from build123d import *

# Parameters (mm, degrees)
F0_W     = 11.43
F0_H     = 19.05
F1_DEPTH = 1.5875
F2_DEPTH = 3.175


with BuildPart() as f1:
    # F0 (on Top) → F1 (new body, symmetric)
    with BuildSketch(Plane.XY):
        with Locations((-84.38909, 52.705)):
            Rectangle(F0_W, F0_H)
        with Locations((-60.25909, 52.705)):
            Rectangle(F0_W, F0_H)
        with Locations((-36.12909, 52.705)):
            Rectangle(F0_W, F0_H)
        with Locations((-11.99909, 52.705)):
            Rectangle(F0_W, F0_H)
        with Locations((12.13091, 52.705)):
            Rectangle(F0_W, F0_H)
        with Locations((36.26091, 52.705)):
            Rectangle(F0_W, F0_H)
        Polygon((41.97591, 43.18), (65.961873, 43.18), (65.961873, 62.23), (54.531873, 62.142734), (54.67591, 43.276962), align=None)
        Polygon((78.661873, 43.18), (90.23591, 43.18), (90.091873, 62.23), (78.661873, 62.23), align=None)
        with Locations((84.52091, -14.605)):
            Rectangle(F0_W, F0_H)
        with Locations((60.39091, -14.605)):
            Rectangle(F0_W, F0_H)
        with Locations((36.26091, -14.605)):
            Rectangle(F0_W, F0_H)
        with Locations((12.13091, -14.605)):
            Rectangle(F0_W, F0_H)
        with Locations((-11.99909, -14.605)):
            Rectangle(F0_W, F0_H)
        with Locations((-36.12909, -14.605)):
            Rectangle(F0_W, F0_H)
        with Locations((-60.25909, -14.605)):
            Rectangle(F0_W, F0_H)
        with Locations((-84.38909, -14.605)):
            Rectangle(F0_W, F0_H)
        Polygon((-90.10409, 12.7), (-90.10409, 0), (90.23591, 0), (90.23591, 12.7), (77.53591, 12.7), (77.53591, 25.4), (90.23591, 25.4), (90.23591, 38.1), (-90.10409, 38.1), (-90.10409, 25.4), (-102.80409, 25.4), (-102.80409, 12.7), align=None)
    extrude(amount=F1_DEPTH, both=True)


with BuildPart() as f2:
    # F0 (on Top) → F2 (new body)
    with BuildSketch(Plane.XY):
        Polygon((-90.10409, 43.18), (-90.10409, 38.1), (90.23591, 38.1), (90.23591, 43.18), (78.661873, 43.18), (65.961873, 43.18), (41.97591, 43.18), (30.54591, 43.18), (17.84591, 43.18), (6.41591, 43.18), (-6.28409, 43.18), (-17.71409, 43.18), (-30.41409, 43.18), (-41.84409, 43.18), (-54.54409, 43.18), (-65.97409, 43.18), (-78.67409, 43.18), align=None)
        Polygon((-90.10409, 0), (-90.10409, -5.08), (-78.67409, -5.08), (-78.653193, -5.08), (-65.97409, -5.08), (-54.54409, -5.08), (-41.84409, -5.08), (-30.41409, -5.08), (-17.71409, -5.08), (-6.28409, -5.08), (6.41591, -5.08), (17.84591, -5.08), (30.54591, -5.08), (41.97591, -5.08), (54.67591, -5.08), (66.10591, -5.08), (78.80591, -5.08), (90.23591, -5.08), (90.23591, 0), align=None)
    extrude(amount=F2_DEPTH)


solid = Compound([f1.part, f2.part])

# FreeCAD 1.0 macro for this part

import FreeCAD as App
import Part
import Sketcher
Q = App.Units.Quantity


def add_polygon(sketch, points):
    """Adds a closed chain of lines whose ends are joined by coincident constraints."""
    first, n = sketch.GeometryCount, len(points)
    for a, b in zip(points, points[1:] + points[:1]):
        sketch.addGeometry(Part.LineSegment(App.Vector(*a, 0), App.Vector(*b, 0)), False)
    for i in range(n):
        sketch.addConstraint(Sketcher.Constraint("Coincident", first + i, 2, first + (i + 1) % n, 1))

doc = App.newDocument("Part")
body = doc.addObject("PartDesign::Body", "Body")
body.AllowCompound = True

# Sketch on XY plane
sketch1 = body.newObject("Sketcher::SketchObject", "Sketch")
sketch1.AttachmentSupport = (doc.getObject("XY_Plane"), [""])
sketch1.MapMode = "FlatFace"
add_polygon(sketch1, [(-90.10409, 62.23), (-90.10409, 43.18), (-78.67409, 43.18), (-78.67409, 62.23)])  # lines 0-3
add_polygon(sketch1, [(-65.97409, 62.23), (-65.97409, 43.18), (-54.54409, 43.18), (-54.54409, 62.23)])  # lines 4-7
add_polygon(sketch1, [(-41.84409, 62.23), (-41.84409, 43.18), (-30.41409, 43.18), (-30.41409, 62.23)])  # lines 8-11
add_polygon(sketch1, [(-17.71409, 62.23), (-17.71409, 43.18), (-6.28409, 43.18), (-6.28409, 62.23)])  # lines 12-15
add_polygon(sketch1, [(6.41591, 62.23), (6.41591, 43.18), (17.84591, 43.18), (17.84591, 62.23)])  # lines 16-19
add_polygon(sketch1, [(30.54591, 62.23), (30.54591, 43.18), (41.97591, 43.18), (41.97591, 62.23)])  # lines 20-23
add_polygon(sketch1, [(41.97591, 43.18), (65.961873, 43.18), (65.961873, 62.23), (54.531873, 62.142734), (54.67591, 43.276962)])  # lines 24-28
add_polygon(sketch1, [(78.661873, 43.18), (90.23591, 43.18), (90.091873, 62.23), (78.661873, 62.23)])  # lines 29-32
add_polygon(sketch1, [(78.80591, -5.08), (78.80591, -24.13), (90.23591, -24.13), (90.23591, -5.08)])  # lines 33-36
add_polygon(sketch1, [(54.67591, -5.08), (54.67591, -24.13), (66.10591, -24.13), (66.10591, -5.08)])  # lines 37-40
add_polygon(sketch1, [(30.54591, -5.08), (30.54591, -24.13), (41.97591, -24.13), (41.97591, -5.08)])  # lines 41-44
add_polygon(sketch1, [(6.41591, -5.08), (6.41591, -24.13), (17.84591, -24.13), (17.84591, -5.08)])  # lines 45-48
add_polygon(sketch1, [(-17.71409, -5.08), (-17.71409, -24.13), (-6.28409, -24.13), (-6.28409, -5.08)])  # lines 49-52
add_polygon(sketch1, [(-41.84409, -5.08), (-41.84409, -24.13), (-30.41409, -24.13), (-30.41409, -5.08)])  # lines 53-56
add_polygon(sketch1, [(-65.97409, -5.08), (-65.97409, -24.13), (-54.54409, -24.13), (-54.54409, -5.08)])  # lines 57-60
add_polygon(sketch1, [(-90.10409, -5.08), (-90.10409, -24.13), (-78.67409, -24.13), (-78.67409, -5.08)])  # lines 61-64
add_polygon(sketch1, [(-90.10409, 12.7), (-90.10409, 0), (90.23591, 0), (90.23591, 12.7), (77.53591, 12.7), (77.53591, 25.4), (90.23591, 25.4), (90.23591, 38.1), (-90.10409, 38.1), (-90.10409, 25.4), (-102.80409, 25.4), (-102.80409, 12.7)])  # lines 65-76
sketch1.addConstraint([
    Sketcher.Constraint("Vertical", 0),
    Sketcher.Constraint("Horizontal", 1),
    Sketcher.Constraint("Vertical", 2),
    Sketcher.Constraint("Horizontal", 3),
    Sketcher.Constraint("Vertical", 4),
    Sketcher.Constraint("Horizontal", 5),
    Sketcher.Constraint("Vertical", 6),
    Sketcher.Constraint("Horizontal", 7),
    Sketcher.Constraint("Vertical", 8),
    Sketcher.Constraint("Horizontal", 9),
    Sketcher.Constraint("Vertical", 10),
    Sketcher.Constraint("Horizontal", 11),
    Sketcher.Constraint("Vertical", 12),
    Sketcher.Constraint("Horizontal", 13),
    Sketcher.Constraint("Vertical", 14),
    Sketcher.Constraint("Horizontal", 15),
    Sketcher.Constraint("Vertical", 16),
    Sketcher.Constraint("Horizontal", 17),
    Sketcher.Constraint("Vertical", 18),
    Sketcher.Constraint("Horizontal", 19),
    Sketcher.Constraint("Vertical", 20),
    Sketcher.Constraint("Horizontal", 21),
    Sketcher.Constraint("Vertical", 22),
    Sketcher.Constraint("Horizontal", 23),
    Sketcher.Constraint("Horizontal", 24),
    Sketcher.Constraint("Vertical", 25),
    Sketcher.Constraint("Horizontal", 29),
    Sketcher.Constraint("Horizontal", 31),
    Sketcher.Constraint("Vertical", 32),
    Sketcher.Constraint("Vertical", 33),
    Sketcher.Constraint("Horizontal", 34),
    Sketcher.Constraint("Vertical", 35),
    Sketcher.Constraint("Horizontal", 36),
    Sketcher.Constraint("Vertical", 37),
    Sketcher.Constraint("Horizontal", 38),
    Sketcher.Constraint("Vertical", 39),
    Sketcher.Constraint("Horizontal", 40),
    Sketcher.Constraint("Vertical", 41),
    Sketcher.Constraint("Horizontal", 42),
    Sketcher.Constraint("Vertical", 43),
    Sketcher.Constraint("Horizontal", 44),
    Sketcher.Constraint("Vertical", 45),
    Sketcher.Constraint("Horizontal", 46),
    Sketcher.Constraint("Vertical", 47),
    Sketcher.Constraint("Horizontal", 48),
    Sketcher.Constraint("Vertical", 49),
    Sketcher.Constraint("Horizontal", 50),
    Sketcher.Constraint("Vertical", 51),
    Sketcher.Constraint("Horizontal", 52),
    Sketcher.Constraint("Vertical", 53),
    Sketcher.Constraint("Horizontal", 54),
    Sketcher.Constraint("Vertical", 55),
    Sketcher.Constraint("Horizontal", 56),
    Sketcher.Constraint("Vertical", 57),
    Sketcher.Constraint("Horizontal", 58),
    Sketcher.Constraint("Vertical", 59),
    Sketcher.Constraint("Horizontal", 60),
    Sketcher.Constraint("Vertical", 61),
    Sketcher.Constraint("Horizontal", 62),
    Sketcher.Constraint("Vertical", 63),
    Sketcher.Constraint("Horizontal", 64),
    Sketcher.Constraint("Vertical", 65),
    Sketcher.Constraint("Horizontal", 66),
    Sketcher.Constraint("Vertical", 67),
    Sketcher.Constraint("Horizontal", 68),
    Sketcher.Constraint("Vertical", 69),
    Sketcher.Constraint("Horizontal", 70),
    Sketcher.Constraint("Vertical", 71),
    Sketcher.Constraint("Horizontal", 72),
    Sketcher.Constraint("Vertical", 73),
    Sketcher.Constraint("Horizontal", 74),
    Sketcher.Constraint("Vertical", 75),
    Sketcher.Constraint("Horizontal", 76),
    Sketcher.Constraint("Coincident", 28, 2, 21, 2),
    Sketcher.Constraint("PointOnObject", 65, 2, -1),
    Sketcher.Constraint("Perpendicular", 26, 27),
    Sketcher.Constraint("Perpendicular", 27, 28),
    Sketcher.Constraint("Horizontal", 1, 2, 4, 2),
    Sketcher.Constraint("Horizontal", 3, 2, 6, 2),
    Sketcher.Constraint("Horizontal", 5, 2, 8, 2),
    Sketcher.Constraint("Horizontal", 7, 2, 10, 2),
    Sketcher.Constraint("Horizontal", 9, 2, 12, 2),
    Sketcher.Constraint("Horizontal", 11, 2, 14, 2),
    Sketcher.Constraint("Horizontal", 13, 2, 16, 2),
    Sketcher.Constraint("Horizontal", 15, 2, 18, 2),
    Sketcher.Constraint("Horizontal", 17, 2, 20, 2),
    Sketcher.Constraint("Horizontal", 19, 2, 22, 2),
    Sketcher.Constraint("Horizontal", 23, 2, 25, 2),
    Sketcher.Constraint("Horizontal", 28, 2, 29, 2),
    Sketcher.Constraint("Horizontal", 25, 2, 30, 2),
    Sketcher.Constraint("Horizontal", 34, 2, 37, 2),
    Sketcher.Constraint("Horizontal", 36, 2, 39, 2),
    Sketcher.Constraint("Horizontal", 38, 2, 41, 2),
    Sketcher.Constraint("Horizontal", 40, 2, 43, 2),
    Sketcher.Constraint("Horizontal", 42, 2, 45, 2),
    Sketcher.Constraint("Horizontal", 44, 2, 47, 2),
    Sketcher.Constraint("Horizontal", 46, 2, 49, 2),
    Sketcher.Constraint("Horizontal", 48, 2, 51, 2),
    Sketcher.Constraint("Horizontal", 50, 2, 53, 2),
    Sketcher.Constraint("Horizontal", 52, 2, 55, 2),
    Sketcher.Constraint("Horizontal", 54, 2, 57, 2),
    Sketcher.Constraint("Horizontal", 56, 2, 59, 2),
    Sketcher.Constraint("Horizontal", 58, 2, 61, 2),
    Sketcher.Constraint("Horizontal", 60, 2, 63, 2),
    Sketcher.Constraint("Horizontal", 70, 2, 73, 2),
    Sketcher.Constraint("Horizontal", 68, 2, 75, 2),
    Sketcher.Constraint("Vertical", 29, 2, 34, 2),
    Sketcher.Constraint("Vertical", 27, 2, 37, 2),
    Sketcher.Constraint("Vertical", 23, 2, 41, 2),
    Sketcher.Constraint("Vertical", 28, 2, 42, 2),
    Sketcher.Constraint("Vertical", 19, 2, 45, 2),
    Sketcher.Constraint("Vertical", 18, 2, 46, 2),
    Sketcher.Constraint("Vertical", 15, 2, 49, 2),
    Sketcher.Constraint("Vertical", 14, 2, 50, 2),
    Sketcher.Constraint("Vertical", 11, 2, 53, 2),
    Sketcher.Constraint("Vertical", 10, 2, 54, 2),
    Sketcher.Constraint("Vertical", 7, 2, 57, 2),
    Sketcher.Constraint("Vertical", 6, 2, 58, 2),
    Sketcher.Constraint("Vertical", 3, 2, 61, 2),
    Sketcher.Constraint("Vertical", 2, 2, 62, 2),
    Sketcher.Constraint("Vertical", 64, 2, 65, 2),
    Sketcher.Constraint("Vertical", 35, 2, 66, 2),
    Sketcher.Constraint("Vertical", 67, 2, 70, 2),
    Sketcher.Constraint("Vertical", 65, 2, 72, 2),
    Sketcher.Constraint("Equal", 3, 5),
    Sketcher.Constraint("Equal", 7, 9),
    Sketcher.Constraint("Equal", 11, 13),
    Sketcher.Constraint("Equal", 15, 17),
    Sketcher.Constraint("Equal", 19, 21),
    Sketcher.Constraint("Equal", 23, 31),
    Sketcher.Constraint("Equal", 31, 34),
    Sketcher.Constraint("Equal", 36, 38),
    Sketcher.Constraint("Equal", 70, 74),
    Sketcher.Constraint("Equal", 32, 33),
    Sketcher.Constraint("Equal", 76, 65),
    Sketcher.Constraint("Equal", 67, 69),
    Sketcher.Constraint("Equal", 69, 71),
    Sketcher.Constraint("DistanceX", 66, 1, 66, 2, Q("7.1 in")),
    Sketcher.Constraint("DistanceX", 68, 2, 68, 1, Q("0.5 in")),
    Sketcher.Constraint("DistanceX", 1, 1, 1, 2, Q("0.45 in")),
    Sketcher.Constraint("DistanceY", 0, 2, 0, 1, Q("0.75 in")),
    Sketcher.Constraint("DistanceY", -1, 1, 0, 2, Q("1.7 in")),
    Sketcher.Constraint("DistanceY", 35, 2, -1, 1, Q("0.2 in")),
    Sketcher.Constraint("Distance", 27, 18.866322),
    Sketcher.Constraint("Distance", 28, 12.70037),
    Sketcher.Constraint("DistanceX", 24, 1, 24, 2, 23.985963),
    Sketcher.Constraint("DistanceX", 29, 1, 29, 2, 11.574037),
    Sketcher.Constraint("DistanceX", 0, 2, -1, 1, 90.10409),
    Sketcher.Constraint("DistanceX", 4, 2, -1, 1, 65.97409),
    Sketcher.Constraint("DistanceX", 8, 2, -1, 1, 41.84409),
    Sketcher.Constraint("DistanceX", 12, 2, -1, 1, 17.71409),
    Sketcher.Constraint("DistanceX", -1, 1, 16, 2, 6.41591),
    Sketcher.Constraint("DistanceX", -1, 1, 20, 2, 30.54591),
])
pad1 = body.newObject("PartDesign::Pad", "Pad")
pad1.Profile = sketch1
pad1.Length = Q("0.125 in")
pad1.Midplane = True
body2 = doc.addObject("PartDesign::Body", "Body001")
body2.AllowCompound = True

# Sketch on XY plane
sketch2 = body2.newObject("Sketcher::SketchObject", "Sketch001")
sketch2.AttachmentSupport = (doc.getObject("XY_Plane001"), [""])
sketch2.MapMode = "FlatFace"
add_polygon(sketch2, [(-90.10409, 43.18), (-90.10409, 38.1), (90.23591, 38.1), (90.23591, 43.18)])  # lines 0-3
add_polygon(sketch2, [(-90.10409, 0), (-90.10409, -5.08), (90.23591, -5.08), (90.23591, 0)])  # lines 4-7
sketch2.addConstraint([
    Sketcher.Constraint("Vertical", 0),
    Sketcher.Constraint("Horizontal", 1),
    Sketcher.Constraint("Vertical", 2),
    Sketcher.Constraint("Horizontal", 3),
    Sketcher.Constraint("Vertical", 4),
    Sketcher.Constraint("Horizontal", 5),
    Sketcher.Constraint("Vertical", 6),
    Sketcher.Constraint("Horizontal", 7),
    Sketcher.Constraint("PointOnObject", 6, 2, -1),
    Sketcher.Constraint("Vertical", 3, 2, 4, 2),
    Sketcher.Constraint("Vertical", 2, 2, 5, 2),
    Sketcher.Constraint("Equal", 2, 4),
    Sketcher.Constraint("DistanceX", 1, 1, 1, 2, Q("7.1 in")),
    Sketcher.Constraint("DistanceY", 0, 2, 0, 1, Q("0.2 in")),
    Sketcher.Constraint("DistanceY", -1, 1, 0, 2, Q("1.5 in")),
    Sketcher.Constraint("DistanceX", 0, 2, -1, 1, 90.10409),
])
pad2 = body2.newObject("PartDesign::Pad", "Pad001")
pad2.Profile = sketch2
pad2.Length = Q("0.125 in")

doc.recompute()
